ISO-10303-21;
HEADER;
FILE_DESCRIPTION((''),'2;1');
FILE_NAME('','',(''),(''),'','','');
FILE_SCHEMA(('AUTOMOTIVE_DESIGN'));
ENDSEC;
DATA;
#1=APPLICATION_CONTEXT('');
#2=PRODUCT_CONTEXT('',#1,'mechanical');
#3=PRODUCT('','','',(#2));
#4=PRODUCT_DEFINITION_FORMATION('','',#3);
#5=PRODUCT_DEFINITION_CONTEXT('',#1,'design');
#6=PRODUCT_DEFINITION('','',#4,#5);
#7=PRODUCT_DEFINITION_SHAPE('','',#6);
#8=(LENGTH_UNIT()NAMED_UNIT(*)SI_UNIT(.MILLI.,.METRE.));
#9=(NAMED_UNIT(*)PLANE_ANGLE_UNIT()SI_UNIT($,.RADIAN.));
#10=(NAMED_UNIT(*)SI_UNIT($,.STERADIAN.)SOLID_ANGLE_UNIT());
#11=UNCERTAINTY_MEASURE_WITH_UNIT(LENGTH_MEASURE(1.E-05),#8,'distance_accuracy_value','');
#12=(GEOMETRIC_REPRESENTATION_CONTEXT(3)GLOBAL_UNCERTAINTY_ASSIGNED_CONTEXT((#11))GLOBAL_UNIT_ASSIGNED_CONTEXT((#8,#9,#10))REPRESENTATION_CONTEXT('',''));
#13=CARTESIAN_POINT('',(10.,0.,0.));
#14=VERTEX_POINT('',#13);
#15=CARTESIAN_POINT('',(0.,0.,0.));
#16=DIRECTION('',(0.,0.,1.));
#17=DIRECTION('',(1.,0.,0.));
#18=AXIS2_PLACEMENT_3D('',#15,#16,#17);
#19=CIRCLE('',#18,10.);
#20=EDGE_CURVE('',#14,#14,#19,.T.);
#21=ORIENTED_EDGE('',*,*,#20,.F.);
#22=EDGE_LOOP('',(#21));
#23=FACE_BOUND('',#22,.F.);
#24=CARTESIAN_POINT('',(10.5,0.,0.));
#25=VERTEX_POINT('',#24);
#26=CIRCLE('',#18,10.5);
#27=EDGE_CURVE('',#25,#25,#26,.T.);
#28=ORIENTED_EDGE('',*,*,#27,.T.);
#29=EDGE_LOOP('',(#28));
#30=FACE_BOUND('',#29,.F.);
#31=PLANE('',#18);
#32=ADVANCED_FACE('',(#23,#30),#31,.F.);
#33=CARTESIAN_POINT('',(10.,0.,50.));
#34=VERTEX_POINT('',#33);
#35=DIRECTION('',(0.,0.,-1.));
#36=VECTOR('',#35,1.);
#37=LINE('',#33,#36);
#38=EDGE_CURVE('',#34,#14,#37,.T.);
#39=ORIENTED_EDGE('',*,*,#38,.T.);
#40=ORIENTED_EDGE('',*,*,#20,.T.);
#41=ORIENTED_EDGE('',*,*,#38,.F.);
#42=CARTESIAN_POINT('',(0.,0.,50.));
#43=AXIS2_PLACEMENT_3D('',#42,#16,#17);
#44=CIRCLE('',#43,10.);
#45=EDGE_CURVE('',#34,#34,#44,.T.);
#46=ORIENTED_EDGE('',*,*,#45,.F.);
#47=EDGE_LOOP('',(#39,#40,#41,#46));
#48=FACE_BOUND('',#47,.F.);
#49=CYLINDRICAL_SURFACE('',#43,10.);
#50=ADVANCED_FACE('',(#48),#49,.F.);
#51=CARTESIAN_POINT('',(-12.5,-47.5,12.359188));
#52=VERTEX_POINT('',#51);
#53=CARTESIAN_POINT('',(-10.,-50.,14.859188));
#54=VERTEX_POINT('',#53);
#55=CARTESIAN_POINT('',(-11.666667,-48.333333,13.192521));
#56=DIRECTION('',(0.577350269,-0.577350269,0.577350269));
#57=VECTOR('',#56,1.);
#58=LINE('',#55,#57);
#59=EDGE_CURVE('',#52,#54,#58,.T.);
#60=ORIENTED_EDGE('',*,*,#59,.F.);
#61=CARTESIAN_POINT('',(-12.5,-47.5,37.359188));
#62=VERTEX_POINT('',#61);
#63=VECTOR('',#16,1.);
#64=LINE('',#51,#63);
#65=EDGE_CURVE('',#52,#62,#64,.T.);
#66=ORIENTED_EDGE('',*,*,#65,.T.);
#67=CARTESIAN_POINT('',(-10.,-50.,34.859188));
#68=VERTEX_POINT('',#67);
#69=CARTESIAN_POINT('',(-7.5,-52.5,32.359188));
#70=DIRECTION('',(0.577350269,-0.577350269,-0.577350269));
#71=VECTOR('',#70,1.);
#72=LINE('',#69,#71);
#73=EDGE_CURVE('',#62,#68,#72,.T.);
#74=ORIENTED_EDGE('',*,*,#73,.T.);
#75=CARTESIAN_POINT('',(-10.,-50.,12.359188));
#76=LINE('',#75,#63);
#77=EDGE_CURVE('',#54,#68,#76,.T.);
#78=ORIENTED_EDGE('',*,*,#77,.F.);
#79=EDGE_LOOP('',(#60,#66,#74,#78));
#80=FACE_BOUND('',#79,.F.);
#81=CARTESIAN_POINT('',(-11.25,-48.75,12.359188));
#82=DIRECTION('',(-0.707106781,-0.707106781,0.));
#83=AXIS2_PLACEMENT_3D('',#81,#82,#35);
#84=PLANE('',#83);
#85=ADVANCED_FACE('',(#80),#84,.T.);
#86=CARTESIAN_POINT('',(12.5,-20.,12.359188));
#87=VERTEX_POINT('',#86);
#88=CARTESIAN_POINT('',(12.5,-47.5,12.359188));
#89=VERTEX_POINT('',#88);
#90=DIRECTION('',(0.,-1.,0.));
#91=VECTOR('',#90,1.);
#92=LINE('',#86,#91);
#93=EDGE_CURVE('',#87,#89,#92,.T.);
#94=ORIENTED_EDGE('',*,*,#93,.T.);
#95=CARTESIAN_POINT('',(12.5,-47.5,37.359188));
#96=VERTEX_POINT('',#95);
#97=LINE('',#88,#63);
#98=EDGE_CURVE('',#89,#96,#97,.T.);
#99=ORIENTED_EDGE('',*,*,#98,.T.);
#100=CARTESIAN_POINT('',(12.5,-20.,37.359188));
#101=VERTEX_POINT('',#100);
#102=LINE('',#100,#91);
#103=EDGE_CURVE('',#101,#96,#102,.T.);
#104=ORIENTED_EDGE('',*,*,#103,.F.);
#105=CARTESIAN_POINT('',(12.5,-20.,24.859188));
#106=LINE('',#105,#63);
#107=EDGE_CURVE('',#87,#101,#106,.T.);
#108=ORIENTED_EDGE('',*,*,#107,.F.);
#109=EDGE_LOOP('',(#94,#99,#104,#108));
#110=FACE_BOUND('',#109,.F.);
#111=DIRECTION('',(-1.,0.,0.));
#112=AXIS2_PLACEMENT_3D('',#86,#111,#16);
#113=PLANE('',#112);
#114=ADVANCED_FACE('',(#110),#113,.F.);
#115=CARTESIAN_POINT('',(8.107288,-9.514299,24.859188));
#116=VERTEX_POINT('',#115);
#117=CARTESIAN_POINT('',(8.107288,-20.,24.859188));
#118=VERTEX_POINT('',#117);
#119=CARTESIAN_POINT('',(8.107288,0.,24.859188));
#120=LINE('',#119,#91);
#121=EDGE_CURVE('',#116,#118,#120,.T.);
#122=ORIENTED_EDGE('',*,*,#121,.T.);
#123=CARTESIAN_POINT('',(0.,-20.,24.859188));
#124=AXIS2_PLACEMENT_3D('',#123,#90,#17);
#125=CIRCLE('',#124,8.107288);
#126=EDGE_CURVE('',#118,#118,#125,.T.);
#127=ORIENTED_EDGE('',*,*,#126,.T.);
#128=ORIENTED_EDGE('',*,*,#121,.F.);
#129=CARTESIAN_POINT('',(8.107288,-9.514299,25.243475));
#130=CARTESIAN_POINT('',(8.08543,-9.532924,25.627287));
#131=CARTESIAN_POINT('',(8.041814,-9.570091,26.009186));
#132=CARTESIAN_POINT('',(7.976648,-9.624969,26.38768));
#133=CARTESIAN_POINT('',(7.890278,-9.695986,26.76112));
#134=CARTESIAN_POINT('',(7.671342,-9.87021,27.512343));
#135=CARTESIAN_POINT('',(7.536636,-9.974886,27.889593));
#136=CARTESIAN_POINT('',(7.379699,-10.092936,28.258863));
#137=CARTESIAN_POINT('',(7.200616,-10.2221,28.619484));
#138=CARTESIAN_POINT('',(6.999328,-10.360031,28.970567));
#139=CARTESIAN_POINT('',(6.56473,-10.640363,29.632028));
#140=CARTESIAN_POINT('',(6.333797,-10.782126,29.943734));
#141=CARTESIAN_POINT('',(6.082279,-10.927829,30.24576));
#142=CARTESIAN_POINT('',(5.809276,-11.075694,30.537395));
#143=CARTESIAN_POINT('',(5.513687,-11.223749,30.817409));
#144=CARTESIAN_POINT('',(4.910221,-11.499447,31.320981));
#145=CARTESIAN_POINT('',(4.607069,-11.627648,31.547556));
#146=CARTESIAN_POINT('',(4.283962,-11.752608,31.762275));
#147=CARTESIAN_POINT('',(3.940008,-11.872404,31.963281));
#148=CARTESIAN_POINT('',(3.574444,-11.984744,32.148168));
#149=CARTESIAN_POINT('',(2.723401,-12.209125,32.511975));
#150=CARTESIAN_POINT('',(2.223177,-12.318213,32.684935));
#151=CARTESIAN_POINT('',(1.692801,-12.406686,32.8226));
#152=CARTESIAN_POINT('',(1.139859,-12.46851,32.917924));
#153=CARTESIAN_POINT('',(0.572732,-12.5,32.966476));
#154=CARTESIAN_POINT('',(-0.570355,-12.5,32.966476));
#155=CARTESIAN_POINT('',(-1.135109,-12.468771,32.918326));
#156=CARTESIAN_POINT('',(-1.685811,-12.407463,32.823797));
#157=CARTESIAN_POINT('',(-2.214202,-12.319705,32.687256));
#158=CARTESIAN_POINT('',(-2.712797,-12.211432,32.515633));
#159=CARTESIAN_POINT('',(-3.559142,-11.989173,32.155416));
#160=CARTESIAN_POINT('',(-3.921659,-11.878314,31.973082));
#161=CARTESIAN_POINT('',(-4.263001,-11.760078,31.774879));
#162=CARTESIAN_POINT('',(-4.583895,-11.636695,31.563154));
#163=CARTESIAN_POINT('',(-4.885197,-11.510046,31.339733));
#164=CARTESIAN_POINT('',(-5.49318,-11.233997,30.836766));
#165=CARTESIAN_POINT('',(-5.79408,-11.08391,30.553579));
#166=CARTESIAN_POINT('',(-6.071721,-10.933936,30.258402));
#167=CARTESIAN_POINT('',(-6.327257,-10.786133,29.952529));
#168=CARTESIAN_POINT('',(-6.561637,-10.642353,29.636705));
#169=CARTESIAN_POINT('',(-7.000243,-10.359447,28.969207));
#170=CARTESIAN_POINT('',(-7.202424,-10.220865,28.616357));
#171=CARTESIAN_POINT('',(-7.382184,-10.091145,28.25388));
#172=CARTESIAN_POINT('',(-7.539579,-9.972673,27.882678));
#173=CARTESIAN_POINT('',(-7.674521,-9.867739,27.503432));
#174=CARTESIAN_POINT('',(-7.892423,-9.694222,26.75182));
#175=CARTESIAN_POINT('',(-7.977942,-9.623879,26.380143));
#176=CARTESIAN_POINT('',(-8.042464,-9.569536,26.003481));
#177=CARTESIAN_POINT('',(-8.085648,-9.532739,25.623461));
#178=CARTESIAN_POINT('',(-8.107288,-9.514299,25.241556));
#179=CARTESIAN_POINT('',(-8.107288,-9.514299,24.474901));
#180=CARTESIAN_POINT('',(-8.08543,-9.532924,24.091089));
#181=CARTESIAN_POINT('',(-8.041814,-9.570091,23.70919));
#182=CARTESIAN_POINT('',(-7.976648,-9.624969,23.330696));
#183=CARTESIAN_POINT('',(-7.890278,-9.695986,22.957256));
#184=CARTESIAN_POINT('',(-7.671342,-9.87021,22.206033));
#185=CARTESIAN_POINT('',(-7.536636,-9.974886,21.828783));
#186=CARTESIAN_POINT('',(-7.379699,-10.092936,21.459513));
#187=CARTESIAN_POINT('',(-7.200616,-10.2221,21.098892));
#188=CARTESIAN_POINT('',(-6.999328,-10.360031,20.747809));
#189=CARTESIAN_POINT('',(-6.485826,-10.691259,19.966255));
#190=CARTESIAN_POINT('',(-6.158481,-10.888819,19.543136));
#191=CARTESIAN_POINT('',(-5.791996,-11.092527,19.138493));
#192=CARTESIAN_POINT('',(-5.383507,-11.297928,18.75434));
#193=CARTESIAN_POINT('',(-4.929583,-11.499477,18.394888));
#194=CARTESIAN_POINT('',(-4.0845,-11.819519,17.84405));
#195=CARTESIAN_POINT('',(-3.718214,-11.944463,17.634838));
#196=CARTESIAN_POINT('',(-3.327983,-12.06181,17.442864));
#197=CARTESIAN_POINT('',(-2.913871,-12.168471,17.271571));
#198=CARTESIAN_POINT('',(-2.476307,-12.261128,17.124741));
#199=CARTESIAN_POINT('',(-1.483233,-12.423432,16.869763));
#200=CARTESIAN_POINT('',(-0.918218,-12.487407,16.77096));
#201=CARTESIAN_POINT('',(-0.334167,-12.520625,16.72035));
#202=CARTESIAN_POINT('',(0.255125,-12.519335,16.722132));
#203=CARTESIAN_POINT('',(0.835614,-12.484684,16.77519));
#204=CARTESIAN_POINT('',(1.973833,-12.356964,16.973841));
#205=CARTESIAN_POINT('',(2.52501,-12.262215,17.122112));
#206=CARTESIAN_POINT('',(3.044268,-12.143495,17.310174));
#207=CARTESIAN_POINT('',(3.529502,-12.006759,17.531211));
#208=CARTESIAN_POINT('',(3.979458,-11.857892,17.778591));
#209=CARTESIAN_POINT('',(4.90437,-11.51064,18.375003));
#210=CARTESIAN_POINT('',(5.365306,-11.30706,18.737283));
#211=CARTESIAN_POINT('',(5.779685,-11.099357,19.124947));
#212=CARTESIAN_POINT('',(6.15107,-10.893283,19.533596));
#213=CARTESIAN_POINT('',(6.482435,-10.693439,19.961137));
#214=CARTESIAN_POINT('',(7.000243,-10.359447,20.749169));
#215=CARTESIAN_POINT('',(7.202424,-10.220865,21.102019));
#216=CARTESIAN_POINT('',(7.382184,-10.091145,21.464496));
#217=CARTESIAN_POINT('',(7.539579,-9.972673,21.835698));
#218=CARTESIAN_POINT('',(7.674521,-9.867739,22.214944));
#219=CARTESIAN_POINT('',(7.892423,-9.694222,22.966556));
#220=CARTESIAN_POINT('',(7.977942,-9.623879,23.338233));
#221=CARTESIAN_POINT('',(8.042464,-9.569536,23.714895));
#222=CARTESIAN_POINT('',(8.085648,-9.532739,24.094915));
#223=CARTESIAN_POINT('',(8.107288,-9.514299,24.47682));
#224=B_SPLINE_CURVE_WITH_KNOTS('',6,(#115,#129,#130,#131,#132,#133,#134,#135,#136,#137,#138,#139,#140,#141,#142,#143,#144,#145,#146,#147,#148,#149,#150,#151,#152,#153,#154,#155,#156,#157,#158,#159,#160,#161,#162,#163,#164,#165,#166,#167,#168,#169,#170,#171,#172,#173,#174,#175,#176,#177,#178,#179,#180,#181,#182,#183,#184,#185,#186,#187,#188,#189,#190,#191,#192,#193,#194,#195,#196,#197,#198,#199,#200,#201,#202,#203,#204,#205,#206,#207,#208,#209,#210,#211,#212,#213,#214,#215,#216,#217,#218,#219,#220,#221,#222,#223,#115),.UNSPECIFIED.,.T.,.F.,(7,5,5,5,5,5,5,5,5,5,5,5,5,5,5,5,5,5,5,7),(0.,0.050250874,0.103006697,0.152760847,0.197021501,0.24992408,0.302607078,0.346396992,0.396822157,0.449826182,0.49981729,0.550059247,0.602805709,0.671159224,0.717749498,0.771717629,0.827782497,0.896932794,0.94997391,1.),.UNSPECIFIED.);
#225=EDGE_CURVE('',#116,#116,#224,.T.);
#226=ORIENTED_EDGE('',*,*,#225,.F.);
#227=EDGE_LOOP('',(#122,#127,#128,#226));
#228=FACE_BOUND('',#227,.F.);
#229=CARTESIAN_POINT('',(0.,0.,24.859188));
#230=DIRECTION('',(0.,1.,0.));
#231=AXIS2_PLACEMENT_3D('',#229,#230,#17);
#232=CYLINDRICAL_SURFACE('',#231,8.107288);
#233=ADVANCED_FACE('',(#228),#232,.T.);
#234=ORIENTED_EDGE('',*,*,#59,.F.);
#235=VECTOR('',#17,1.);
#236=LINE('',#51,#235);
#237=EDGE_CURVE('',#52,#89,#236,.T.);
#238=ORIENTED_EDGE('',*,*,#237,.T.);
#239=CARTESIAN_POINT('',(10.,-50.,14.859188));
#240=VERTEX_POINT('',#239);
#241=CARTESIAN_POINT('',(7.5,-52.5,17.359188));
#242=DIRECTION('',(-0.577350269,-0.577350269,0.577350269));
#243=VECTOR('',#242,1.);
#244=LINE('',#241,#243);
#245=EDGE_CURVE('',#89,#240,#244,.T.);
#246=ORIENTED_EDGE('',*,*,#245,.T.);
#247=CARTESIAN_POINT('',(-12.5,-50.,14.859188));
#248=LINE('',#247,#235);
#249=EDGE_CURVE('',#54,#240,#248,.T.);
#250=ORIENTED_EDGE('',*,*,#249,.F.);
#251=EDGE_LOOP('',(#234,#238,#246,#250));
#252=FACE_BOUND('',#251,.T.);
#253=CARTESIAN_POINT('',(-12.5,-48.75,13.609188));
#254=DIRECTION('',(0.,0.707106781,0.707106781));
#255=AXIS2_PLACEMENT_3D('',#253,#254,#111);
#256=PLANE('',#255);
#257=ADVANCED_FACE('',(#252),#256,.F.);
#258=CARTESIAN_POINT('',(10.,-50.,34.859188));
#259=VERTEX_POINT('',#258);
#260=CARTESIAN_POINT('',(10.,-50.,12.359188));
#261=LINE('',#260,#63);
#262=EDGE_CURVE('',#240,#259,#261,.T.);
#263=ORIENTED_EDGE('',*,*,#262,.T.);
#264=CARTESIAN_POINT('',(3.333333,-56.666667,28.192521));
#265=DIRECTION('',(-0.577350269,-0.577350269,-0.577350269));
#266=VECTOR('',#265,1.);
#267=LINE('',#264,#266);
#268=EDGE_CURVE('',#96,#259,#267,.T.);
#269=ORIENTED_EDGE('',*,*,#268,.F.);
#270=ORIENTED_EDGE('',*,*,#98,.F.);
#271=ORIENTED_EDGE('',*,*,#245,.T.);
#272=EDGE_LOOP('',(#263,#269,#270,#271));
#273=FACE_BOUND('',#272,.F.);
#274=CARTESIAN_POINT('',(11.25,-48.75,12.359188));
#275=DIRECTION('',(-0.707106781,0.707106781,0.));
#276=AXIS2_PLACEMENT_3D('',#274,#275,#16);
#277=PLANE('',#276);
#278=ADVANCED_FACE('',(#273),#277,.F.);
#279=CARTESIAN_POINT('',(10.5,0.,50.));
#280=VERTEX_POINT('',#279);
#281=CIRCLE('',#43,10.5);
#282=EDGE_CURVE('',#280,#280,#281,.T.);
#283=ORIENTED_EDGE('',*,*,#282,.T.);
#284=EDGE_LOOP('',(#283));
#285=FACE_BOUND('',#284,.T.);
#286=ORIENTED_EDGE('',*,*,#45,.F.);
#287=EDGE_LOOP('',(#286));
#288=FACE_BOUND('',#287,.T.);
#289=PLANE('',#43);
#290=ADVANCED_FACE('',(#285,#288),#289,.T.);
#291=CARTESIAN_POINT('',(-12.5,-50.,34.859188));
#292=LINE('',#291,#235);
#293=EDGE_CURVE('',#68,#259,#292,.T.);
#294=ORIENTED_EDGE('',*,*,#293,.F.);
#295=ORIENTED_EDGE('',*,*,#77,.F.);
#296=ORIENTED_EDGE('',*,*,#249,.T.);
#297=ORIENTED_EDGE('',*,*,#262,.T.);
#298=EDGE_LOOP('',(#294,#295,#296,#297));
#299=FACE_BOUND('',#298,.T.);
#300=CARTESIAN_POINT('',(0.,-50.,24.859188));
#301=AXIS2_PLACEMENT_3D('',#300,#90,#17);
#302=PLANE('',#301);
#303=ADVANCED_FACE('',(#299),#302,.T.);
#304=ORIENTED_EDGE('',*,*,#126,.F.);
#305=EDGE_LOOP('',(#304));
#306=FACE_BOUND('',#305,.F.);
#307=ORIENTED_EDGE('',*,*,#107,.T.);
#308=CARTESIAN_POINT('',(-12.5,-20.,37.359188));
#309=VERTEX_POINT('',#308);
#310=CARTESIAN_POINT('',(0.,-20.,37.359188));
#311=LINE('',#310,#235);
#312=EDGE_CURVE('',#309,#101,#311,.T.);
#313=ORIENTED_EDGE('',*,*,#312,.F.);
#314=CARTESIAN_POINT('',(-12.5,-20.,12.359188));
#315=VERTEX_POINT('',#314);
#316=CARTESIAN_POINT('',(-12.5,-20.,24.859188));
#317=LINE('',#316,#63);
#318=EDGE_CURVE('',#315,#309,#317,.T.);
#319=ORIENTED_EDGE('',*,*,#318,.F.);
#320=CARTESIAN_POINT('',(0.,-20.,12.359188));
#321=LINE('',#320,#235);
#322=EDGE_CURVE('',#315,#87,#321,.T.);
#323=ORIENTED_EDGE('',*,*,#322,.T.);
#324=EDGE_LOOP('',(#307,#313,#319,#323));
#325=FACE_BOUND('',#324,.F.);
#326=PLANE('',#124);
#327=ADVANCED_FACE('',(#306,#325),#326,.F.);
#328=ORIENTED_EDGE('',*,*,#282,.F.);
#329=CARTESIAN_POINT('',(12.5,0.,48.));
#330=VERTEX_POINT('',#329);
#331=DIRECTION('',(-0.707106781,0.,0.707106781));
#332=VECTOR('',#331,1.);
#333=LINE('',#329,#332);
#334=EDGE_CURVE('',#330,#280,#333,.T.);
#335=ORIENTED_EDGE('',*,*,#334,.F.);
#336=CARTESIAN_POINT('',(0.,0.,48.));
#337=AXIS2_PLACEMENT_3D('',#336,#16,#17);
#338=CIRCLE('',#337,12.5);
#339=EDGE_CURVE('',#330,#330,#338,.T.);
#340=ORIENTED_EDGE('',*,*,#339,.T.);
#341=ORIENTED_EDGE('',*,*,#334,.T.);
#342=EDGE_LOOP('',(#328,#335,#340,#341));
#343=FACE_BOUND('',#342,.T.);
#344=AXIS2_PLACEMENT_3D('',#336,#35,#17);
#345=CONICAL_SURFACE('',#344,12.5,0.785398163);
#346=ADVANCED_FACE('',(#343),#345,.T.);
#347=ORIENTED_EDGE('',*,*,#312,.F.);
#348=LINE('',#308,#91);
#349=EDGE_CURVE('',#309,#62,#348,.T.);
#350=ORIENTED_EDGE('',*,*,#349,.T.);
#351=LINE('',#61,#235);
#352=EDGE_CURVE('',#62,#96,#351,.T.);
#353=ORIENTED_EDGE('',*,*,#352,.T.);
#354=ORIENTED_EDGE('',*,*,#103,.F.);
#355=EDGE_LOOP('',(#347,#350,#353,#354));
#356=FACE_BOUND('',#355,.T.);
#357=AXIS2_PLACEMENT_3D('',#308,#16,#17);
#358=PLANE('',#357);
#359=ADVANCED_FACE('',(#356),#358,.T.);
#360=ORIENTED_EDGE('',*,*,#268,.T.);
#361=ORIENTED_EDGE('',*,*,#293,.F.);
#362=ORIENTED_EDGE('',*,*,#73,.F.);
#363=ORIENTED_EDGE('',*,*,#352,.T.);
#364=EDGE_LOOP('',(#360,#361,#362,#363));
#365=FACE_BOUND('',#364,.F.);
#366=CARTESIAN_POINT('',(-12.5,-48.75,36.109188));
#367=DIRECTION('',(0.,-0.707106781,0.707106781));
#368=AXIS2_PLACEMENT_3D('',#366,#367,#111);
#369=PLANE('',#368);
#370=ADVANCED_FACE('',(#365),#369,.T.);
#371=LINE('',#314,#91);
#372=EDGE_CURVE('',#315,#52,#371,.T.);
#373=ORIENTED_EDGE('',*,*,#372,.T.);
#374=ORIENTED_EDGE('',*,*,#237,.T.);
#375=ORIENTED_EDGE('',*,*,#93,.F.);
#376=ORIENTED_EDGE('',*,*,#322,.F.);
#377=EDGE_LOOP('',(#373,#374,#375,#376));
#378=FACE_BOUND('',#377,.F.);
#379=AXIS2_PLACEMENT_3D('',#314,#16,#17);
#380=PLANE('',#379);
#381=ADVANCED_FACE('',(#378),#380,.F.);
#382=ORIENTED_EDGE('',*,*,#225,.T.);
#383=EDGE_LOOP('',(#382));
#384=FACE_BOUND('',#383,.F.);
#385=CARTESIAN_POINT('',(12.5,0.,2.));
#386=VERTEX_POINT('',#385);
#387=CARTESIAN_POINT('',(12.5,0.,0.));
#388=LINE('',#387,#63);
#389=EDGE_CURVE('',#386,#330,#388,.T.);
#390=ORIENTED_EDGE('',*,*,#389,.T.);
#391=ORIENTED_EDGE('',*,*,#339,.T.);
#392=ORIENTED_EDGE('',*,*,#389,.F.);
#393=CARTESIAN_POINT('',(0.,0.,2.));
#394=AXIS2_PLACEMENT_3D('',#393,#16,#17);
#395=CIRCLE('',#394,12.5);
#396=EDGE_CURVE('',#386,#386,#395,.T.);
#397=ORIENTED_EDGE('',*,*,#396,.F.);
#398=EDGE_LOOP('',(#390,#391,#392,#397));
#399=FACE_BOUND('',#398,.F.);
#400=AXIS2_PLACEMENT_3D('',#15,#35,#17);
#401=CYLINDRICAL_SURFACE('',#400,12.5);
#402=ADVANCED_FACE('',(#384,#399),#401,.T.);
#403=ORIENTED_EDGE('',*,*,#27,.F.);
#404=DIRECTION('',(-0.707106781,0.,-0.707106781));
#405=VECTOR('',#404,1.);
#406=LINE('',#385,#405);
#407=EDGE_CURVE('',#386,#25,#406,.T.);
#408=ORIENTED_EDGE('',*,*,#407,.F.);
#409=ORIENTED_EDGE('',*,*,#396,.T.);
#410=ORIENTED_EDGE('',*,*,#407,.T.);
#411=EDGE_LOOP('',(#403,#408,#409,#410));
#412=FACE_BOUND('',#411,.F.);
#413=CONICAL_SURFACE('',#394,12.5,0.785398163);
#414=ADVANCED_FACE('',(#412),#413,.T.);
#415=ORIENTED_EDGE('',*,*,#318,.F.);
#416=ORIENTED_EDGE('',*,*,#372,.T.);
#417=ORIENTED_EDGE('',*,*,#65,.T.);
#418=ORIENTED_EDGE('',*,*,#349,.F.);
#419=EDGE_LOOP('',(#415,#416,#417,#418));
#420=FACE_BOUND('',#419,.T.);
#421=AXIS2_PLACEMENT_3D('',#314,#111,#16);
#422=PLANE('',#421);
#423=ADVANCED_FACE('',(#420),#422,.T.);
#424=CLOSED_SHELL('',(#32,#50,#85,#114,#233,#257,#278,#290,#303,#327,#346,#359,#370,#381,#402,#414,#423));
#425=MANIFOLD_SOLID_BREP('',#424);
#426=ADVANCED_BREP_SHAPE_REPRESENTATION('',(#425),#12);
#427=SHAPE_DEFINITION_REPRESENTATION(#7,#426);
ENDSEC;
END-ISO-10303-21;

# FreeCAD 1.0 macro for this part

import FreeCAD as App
import Part
import Sketcher
from FreeCAD import Vector
Q = App.Units.Quantity


def edges_at(feature, points):
    """Names of the edges that pass closest to the given points."""
    edges = feature.Shape.Edges
    near = lambda p: min(range(len(edges)), key=lambda i: edges[i].distToShape(Part.Vertex(*p))[0])
    return sorted({f"Edge{near(p) + 1}" for p in points})


def add_polygon(sketch, points):
    """Adds a closed chain of lines whose ends are joined by coincident constraints."""
    first, n = sketch.GeometryCount, len(points)
    for a, b in zip(points, points[1:] + points[:1]):
        sketch.addGeometry(Part.LineSegment(App.Vector(*a, 0), App.Vector(*b, 0)), False)
    for i in range(n):
        sketch.addConstraint(Sketcher.Constraint("Coincident", first + i, 2, first + (i + 1) % n, 1))

doc = App.newDocument("Part")
body = doc.addObject("PartDesign::Body", "Body")

# Sketch on XY plane
sketch1 = body.newObject("Sketcher::SketchObject", "Sketch")
sketch1.AttachmentSupport = (doc.getObject("XY_Plane"), [""])
sketch1.MapMode = "FlatFace"
sketch1.addGeometry(Part.Circle(Vector(0, 0, 0), Vector(0, 0, 1), 12), False)
sketch1.addConstraint([
    Sketcher.Constraint("Coincident", 0, 3, -1, 1),
    Sketcher.Constraint("Diameter", 0, Q("25 mm")),
])
pad1 = body.newObject("PartDesign::Pad", "Pad")
pad1.Profile = sketch1
pad1.Length = 50
doc.recompute()

chamfer = body.newObject("PartDesign::Chamfer", "Chamfer")
chamfer.Base = (pad1, edges_at(pad1, [(-12.5, 0, 50), (-12.5, 0, 0)]))
chamfer.Size = 2

# Sketch on XZ plane
sketch2 = body.newObject("Sketcher::SketchObject", "Sketch001")
sketch2.AttachmentSupport = (doc.getObject("XZ_Plane"), [""])
sketch2.MapMode = "FlatFace"
sketch2.addGeometry(Part.Circle(Vector(0, 25, 0), Vector(0, 0, 1), 8), False)
sketch2.addConstraint([
    Sketcher.Constraint("PointOnObject", 0, 3, -2),
    Sketcher.Constraint("Diameter", 0, Q("16.214576 mm")),
    Sketcher.Constraint("DistanceY", -1, 1, 0, 3, Q("24.859188 mm")),
])
pad2 = body.newObject("PartDesign::Pad", "Pad001")
pad2.Profile = sketch2
pad2.Length = 20

# Sketch on XZ plane
sketch3 = body.newObject("Sketcher::SketchObject", "Sketch002")
sketch3.AttachmentSupport = (doc.getObject("XZ_Plane"), [""])
sketch3.MapMode = "FlatFace"
sketch3.AttachmentOffset = App.Placement(Vector(0, 0, 20), App.Rotation())
add_polygon(sketch3, [(-12, 37), (-12, 12), (12, 12), (12, 37)])  # lines 0-3
sketch3.addConstraint([
    Sketcher.Constraint("Vertical", 0),
    Sketcher.Constraint("Horizontal", 1),
    Sketcher.Constraint("Vertical", 2),
    Sketcher.Constraint("Horizontal", 3),
    Sketcher.Constraint("Equal", 3, 0),
    Sketcher.Constraint("DistanceX", 1, 1, 1, 2, Q("25 mm")),
    Sketcher.Constraint("DistanceX", 0, 2, -1, 1, Q("12.5 mm")),
    Sketcher.Constraint("DistanceY", -1, 1, 2, 2, Q("37.359188 mm")),
])
pad3 = body.newObject("PartDesign::Pad", "Pad002")
pad3.Profile = sketch3
pad3.Length = 30
doc.recompute()

chamfer2 = body.newObject("PartDesign::Chamfer", "Chamfer001")
chamfer2.Base = (pad3, edges_at(pad3, [
    (0, -50, 37.359),
    (-12.5, -50, 24.859),
    (0, -50, 12.359),
    (12.5, -50, 24.859),
]))
chamfer2.Size = 2.5

# Sketch on XY plane
sketch4 = body.newObject("Sketcher::SketchObject", "Sketch003")
sketch4.AttachmentSupport = (doc.getObject("XY_Plane"), [""])
sketch4.MapMode = "FlatFace"
sketch4.AttachmentOffset = App.Placement(Vector(0, 0, 50), App.Rotation())
sketch4.addGeometry(Part.Circle(Vector(0, 0, 0), Vector(0, 0, 1), 10), False)
sketch4.addConstraint([
    Sketcher.Constraint("Coincident", 0, 3, -1, 1),
    Sketcher.Constraint("Diameter", 0, Q("20 mm")),
])
pocket1 = body.newObject("PartDesign::Pocket", "Pocket")
pocket1.Profile = sketch4
pocket1.Type = "ThroughAll"

doc.recompute()
